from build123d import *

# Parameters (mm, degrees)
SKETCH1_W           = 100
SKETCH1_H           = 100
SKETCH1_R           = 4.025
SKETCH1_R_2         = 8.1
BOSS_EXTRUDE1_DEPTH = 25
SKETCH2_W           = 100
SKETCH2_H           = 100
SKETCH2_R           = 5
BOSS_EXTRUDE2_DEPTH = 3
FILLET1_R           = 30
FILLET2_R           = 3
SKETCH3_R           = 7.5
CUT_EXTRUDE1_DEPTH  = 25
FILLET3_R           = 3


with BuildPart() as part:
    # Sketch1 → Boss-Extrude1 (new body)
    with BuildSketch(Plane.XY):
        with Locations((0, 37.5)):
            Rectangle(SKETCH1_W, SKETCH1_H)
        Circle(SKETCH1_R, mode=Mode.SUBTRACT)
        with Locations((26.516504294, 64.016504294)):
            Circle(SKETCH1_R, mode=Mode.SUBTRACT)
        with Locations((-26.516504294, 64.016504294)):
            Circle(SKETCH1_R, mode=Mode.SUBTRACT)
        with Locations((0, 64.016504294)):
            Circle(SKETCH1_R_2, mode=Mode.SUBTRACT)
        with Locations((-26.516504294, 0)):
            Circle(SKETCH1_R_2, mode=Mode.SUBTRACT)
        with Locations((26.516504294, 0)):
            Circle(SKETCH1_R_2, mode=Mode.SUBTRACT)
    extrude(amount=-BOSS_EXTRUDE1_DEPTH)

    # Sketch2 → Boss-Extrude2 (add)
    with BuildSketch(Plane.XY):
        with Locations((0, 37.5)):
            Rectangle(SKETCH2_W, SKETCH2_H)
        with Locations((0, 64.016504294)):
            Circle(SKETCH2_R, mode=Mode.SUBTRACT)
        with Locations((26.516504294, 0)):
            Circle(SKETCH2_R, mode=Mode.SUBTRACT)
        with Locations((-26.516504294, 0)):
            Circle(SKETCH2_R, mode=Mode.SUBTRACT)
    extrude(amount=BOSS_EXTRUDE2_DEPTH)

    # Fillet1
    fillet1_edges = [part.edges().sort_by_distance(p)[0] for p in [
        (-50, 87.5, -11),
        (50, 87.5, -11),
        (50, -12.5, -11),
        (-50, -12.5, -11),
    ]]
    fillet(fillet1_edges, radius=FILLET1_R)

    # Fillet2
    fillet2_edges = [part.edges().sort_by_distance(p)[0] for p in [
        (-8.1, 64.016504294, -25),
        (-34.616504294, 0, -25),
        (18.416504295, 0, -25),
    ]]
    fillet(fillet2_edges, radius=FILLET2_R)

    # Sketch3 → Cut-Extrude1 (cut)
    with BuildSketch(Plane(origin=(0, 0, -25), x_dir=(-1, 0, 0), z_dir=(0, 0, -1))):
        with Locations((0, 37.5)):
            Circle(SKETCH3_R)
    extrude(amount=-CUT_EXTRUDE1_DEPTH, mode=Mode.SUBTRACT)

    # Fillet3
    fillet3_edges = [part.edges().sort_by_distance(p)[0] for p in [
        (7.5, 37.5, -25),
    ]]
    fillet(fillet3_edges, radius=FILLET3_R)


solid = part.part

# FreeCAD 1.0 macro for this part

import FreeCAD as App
import Part
import Sketcher

V = App.Vector


def edges_at(feature, points):
    """Names of the edges that pass closest to the given points."""
    edges = feature.Shape.Edges
    near = lambda p: min(range(len(edges)), key=lambda i: edges[i].distToShape(Part.Vertex(*p))[0])
    return sorted({f"Edge{near(p) + 1}" for p in points})

doc = App.newDocument("Part")
params = doc.addObject("Spreadsheet::Sheet", "Params")
for row, (alias, value) in enumerate([
    ("sketch1_diameter", "16.2 mm"),
    ("sketch1_diameter2", "8.05 mm"),
    ("sketch1_width", "100 mm"),
    ("pad1_length", "25 mm"),
    ("sketch2_diameter", "10 mm"),
    ("sketch2_width", "100 mm"),
    ("pad2_length", "3 mm"),
    ("fillet_radius", "30 mm"),
    ("fillet2_radius", "3 mm"),
    ("sketch3_diameter", "15 mm"),
    ("pocket1_length", "25 mm"),
    ("fillet3_radius", "3 mm"),
], start=1):
    params.set(f"A{row}", alias)
    params.set(f"B{row}", "=" + value)
    params.setAlias(f"B{row}", alias)

body = doc.addObject("PartDesign::Body", "Body")

# Sketch on XY plane
sketch1 = doc.addObject("Sketcher::SketchObject", "Sketch")
body.addObject(sketch1)
sketch1.AttachmentSupport = (doc.XY_Plane, [""])
sketch1.MapMode = "FlatFace"
sketch1.addGeometry([
    Part.LineSegment(V(-50, 87.5, 0), V(-50, -12.5, 0)),  # 0
    Part.LineSegment(V(-50, -12.5, 0), V(50, -12.5, 0)),  # 1
    Part.LineSegment(V(50, -12.5, 0), V(50, 87.5, 0)),  # 2
    Part.LineSegment(V(50, 87.5, 0), V(-50, 87.5, 0)),  # 3
    Part.Circle(V(-26.5, 0, 0), V(0, 0, 1), 8.1),  # 4
    Part.Circle(V(0, 0, 0), V(0, 0, 1), 4),  # 5
    Part.Circle(V(26.5, 0, 0), V(0, 0, 1), 8.1),  # 6
    Part.Circle(V(-26.5, 64, 0), V(0, 0, 1), 4),  # 7
    Part.Circle(V(0, 64, 0), V(0, 0, 1), 8.1),  # 8
    Part.Circle(V(26.5, 64, 0), V(0, 0, 1), 4),  # 9
], False)
sketch1.addConstraint([
    Sketcher.Constraint("Coincident", 0, 2, 1, 1),
    Sketcher.Constraint("Coincident", 1, 2, 2, 1),
    Sketcher.Constraint("Coincident", 2, 2, 3, 1),
    Sketcher.Constraint("Coincident", 3, 2, 0, 1),
    Sketcher.Constraint("Vertical", 0),
    Sketcher.Constraint("Horizontal", 1),
    Sketcher.Constraint("Vertical", 2),
    Sketcher.Constraint("Horizontal", 3),
    Sketcher.Constraint("Coincident", 5, 3, -1, 1),
    Sketcher.Constraint("Equal", 4, 6),
    Sketcher.Constraint("Equal", 5, 7),
    Sketcher.Constraint("Equal", 6, 8),
    Sketcher.Constraint("Equal", 7, 9),
    Sketcher.Constraint("Symmetric", 4, 3, 6, 3, -1, 1),
    Sketcher.Constraint("Symmetric", 7, 3, 9, 3, -2),
    Sketcher.Constraint("PointOnObject", 4, 3, -1),
    Sketcher.Constraint("PointOnObject", 8, 3, -2),
    Sketcher.Constraint("Horizontal", 7, 3, 8, 3),
    Sketcher.Constraint("Vertical", 4, 3, 7, 3),
    Sketcher.Constraint("Equal", 3, 0),
    Sketcher.Constraint("Diameter", 4, 16.2),
    Sketcher.Constraint("Diameter", 5, 8.05),
    Sketcher.Constraint("DistanceX", 1, 1, 1, 2, 100.0),
    Sketcher.Constraint("DistanceX", 0, 2, -1, 1, 50.0),
    Sketcher.Constraint("DistanceY", 0, 2, -1, 1, 12.5),
    Sketcher.Constraint("DistanceX", 4, 3, 6, 3, 53.033009),
    Sketcher.Constraint("DistanceY", -1, 1, 7, 3, 64.016504),
])
sketch1.setExpression("Constraints[20]", "Params.sketch1_diameter")
sketch1.setExpression("Constraints[21]", "Params.sketch1_diameter2")
sketch1.setExpression("Constraints[22]", "Params.sketch1_width")
pad1 = doc.addObject("PartDesign::Pad", "Pad")
body.addObject(pad1)
pad1.Profile = sketch1
pad1.setExpression("Length", "Params.pad1_length")
pad1.Reversed = True

# Sketch on XY plane
sketch2 = doc.addObject("Sketcher::SketchObject", "Sketch001")
body.addObject(sketch2)
sketch2.AttachmentSupport = (doc.XY_Plane, [""])
sketch2.MapMode = "FlatFace"
sketch2.addGeometry([
    Part.LineSegment(V(-50, 88, 0), V(-50, -12, 0)),  # 0
    Part.LineSegment(V(-50, -12, 0), V(50, -12, 0)),  # 1
    Part.LineSegment(V(50, -12, 0), V(50, 88, 0)),  # 2
    Part.LineSegment(V(50, 88, 0), V(-50, 88, 0)),  # 3
    Part.Circle(V(-27, 0, 0), V(0, 0, 1), 5),  # 4
    Part.Circle(V(27, 0, 0), V(0, 0, 1), 5),  # 5
    Part.Circle(V(0, 64, 0), V(0, 0, 1), 5),  # 6
], False)
sketch2.addConstraint([
    Sketcher.Constraint("Coincident", 0, 2, 1, 1),
    Sketcher.Constraint("Coincident", 1, 2, 2, 1),
    Sketcher.Constraint("Coincident", 2, 2, 3, 1),
    Sketcher.Constraint("Coincident", 3, 2, 0, 1),
    Sketcher.Constraint("Vertical", 0),
    Sketcher.Constraint("Horizontal", 1),
    Sketcher.Constraint("Vertical", 2),
    Sketcher.Constraint("Horizontal", 3),
    Sketcher.Constraint("Equal", 4, 5),
    Sketcher.Constraint("Equal", 5, 6),
    Sketcher.Constraint("Symmetric", 4, 3, 5, 3, -1, 1),
    Sketcher.Constraint("PointOnObject", 4, 3, -1),
    Sketcher.Constraint("PointOnObject", 6, 3, -2),
    Sketcher.Constraint("Equal", 3, 0),
    Sketcher.Constraint("Diameter", 4, 10.0),
    Sketcher.Constraint("DistanceX", 1, 1, 1, 2, 100.0),
    Sketcher.Constraint("DistanceX", 0, 2, -1, 1, 50.0),
    Sketcher.Constraint("DistanceY", 0, 2, -1, 1, 12.5),
    Sketcher.Constraint("DistanceX", 4, 3, 5, 3, 53.033009),
    Sketcher.Constraint("DistanceY", -1, 1, 6, 3, 64.016504),
])
sketch2.setExpression("Constraints[14]", "Params.sketch2_diameter")
sketch2.setExpression("Constraints[15]", "Params.sketch2_width")
pad2 = doc.addObject("PartDesign::Pad", "Pad001")
body.addObject(pad2)
pad2.Profile = sketch2
pad2.setExpression("Length", "Params.pad2_length")
doc.recompute()

fillet = doc.addObject("PartDesign::Fillet", "Fillet")
body.addObject(fillet)
fillet.Base = (pad2, edges_at(pad2, [
    (-50, 87.5, -11),
    (50, 87.5, -11),
    (50, -12.5, -11),
    (-50, -12.5, -11),
]))
fillet.setExpression("Radius", "Params.fillet_radius")
doc.recompute()

fillet2 = doc.addObject("PartDesign::Fillet", "Fillet001")
body.addObject(fillet2)
fillet2.Base = (fillet, edges_at(fillet, [(-8.1, 64.017, -25), (-34.617, 0, -25), (18.417, 0, -25)]))
fillet2.setExpression("Radius", "Params.fillet2_radius")

# Sketch on XY plane
sketch3 = doc.addObject("Sketcher::SketchObject", "Sketch002")
body.addObject(sketch3)
sketch3.AttachmentSupport = (doc.XY_Plane, [""])
sketch3.MapMode = "FlatFace"
sketch3.AttachmentOffset = App.Placement(V(0, 0, -25), App.Rotation())
sketch3.addGeometry(Part.Circle(V(0, 38, 0), V(0, 0, 1), 8), False)
sketch3.addConstraint([
    Sketcher.Constraint("PointOnObject", 0, 3, -2),
    Sketcher.Constraint("Diameter", 0, 15.0),
    Sketcher.Constraint("DistanceY", -1, 1, 0, 3, 37.5),
])
sketch3.setExpression("Constraints[1]", "Params.sketch3_diameter")
pocket1 = doc.addObject("PartDesign::Pocket", "Pocket")
body.addObject(pocket1)
pocket1.Profile = sketch3
pocket1.setExpression("Length", "Params.pocket1_length")
pocket1.Reversed = True
doc.recompute()

fillet3 = doc.addObject("PartDesign::Fillet", "Fillet002")
body.addObject(fillet3)
fillet3.Base = (pocket1, edges_at(pocket1, [(7.5, 37.5, -25)]))
fillet3.setExpression("Radius", "Params.fillet3_radius")

doc.recompute()
